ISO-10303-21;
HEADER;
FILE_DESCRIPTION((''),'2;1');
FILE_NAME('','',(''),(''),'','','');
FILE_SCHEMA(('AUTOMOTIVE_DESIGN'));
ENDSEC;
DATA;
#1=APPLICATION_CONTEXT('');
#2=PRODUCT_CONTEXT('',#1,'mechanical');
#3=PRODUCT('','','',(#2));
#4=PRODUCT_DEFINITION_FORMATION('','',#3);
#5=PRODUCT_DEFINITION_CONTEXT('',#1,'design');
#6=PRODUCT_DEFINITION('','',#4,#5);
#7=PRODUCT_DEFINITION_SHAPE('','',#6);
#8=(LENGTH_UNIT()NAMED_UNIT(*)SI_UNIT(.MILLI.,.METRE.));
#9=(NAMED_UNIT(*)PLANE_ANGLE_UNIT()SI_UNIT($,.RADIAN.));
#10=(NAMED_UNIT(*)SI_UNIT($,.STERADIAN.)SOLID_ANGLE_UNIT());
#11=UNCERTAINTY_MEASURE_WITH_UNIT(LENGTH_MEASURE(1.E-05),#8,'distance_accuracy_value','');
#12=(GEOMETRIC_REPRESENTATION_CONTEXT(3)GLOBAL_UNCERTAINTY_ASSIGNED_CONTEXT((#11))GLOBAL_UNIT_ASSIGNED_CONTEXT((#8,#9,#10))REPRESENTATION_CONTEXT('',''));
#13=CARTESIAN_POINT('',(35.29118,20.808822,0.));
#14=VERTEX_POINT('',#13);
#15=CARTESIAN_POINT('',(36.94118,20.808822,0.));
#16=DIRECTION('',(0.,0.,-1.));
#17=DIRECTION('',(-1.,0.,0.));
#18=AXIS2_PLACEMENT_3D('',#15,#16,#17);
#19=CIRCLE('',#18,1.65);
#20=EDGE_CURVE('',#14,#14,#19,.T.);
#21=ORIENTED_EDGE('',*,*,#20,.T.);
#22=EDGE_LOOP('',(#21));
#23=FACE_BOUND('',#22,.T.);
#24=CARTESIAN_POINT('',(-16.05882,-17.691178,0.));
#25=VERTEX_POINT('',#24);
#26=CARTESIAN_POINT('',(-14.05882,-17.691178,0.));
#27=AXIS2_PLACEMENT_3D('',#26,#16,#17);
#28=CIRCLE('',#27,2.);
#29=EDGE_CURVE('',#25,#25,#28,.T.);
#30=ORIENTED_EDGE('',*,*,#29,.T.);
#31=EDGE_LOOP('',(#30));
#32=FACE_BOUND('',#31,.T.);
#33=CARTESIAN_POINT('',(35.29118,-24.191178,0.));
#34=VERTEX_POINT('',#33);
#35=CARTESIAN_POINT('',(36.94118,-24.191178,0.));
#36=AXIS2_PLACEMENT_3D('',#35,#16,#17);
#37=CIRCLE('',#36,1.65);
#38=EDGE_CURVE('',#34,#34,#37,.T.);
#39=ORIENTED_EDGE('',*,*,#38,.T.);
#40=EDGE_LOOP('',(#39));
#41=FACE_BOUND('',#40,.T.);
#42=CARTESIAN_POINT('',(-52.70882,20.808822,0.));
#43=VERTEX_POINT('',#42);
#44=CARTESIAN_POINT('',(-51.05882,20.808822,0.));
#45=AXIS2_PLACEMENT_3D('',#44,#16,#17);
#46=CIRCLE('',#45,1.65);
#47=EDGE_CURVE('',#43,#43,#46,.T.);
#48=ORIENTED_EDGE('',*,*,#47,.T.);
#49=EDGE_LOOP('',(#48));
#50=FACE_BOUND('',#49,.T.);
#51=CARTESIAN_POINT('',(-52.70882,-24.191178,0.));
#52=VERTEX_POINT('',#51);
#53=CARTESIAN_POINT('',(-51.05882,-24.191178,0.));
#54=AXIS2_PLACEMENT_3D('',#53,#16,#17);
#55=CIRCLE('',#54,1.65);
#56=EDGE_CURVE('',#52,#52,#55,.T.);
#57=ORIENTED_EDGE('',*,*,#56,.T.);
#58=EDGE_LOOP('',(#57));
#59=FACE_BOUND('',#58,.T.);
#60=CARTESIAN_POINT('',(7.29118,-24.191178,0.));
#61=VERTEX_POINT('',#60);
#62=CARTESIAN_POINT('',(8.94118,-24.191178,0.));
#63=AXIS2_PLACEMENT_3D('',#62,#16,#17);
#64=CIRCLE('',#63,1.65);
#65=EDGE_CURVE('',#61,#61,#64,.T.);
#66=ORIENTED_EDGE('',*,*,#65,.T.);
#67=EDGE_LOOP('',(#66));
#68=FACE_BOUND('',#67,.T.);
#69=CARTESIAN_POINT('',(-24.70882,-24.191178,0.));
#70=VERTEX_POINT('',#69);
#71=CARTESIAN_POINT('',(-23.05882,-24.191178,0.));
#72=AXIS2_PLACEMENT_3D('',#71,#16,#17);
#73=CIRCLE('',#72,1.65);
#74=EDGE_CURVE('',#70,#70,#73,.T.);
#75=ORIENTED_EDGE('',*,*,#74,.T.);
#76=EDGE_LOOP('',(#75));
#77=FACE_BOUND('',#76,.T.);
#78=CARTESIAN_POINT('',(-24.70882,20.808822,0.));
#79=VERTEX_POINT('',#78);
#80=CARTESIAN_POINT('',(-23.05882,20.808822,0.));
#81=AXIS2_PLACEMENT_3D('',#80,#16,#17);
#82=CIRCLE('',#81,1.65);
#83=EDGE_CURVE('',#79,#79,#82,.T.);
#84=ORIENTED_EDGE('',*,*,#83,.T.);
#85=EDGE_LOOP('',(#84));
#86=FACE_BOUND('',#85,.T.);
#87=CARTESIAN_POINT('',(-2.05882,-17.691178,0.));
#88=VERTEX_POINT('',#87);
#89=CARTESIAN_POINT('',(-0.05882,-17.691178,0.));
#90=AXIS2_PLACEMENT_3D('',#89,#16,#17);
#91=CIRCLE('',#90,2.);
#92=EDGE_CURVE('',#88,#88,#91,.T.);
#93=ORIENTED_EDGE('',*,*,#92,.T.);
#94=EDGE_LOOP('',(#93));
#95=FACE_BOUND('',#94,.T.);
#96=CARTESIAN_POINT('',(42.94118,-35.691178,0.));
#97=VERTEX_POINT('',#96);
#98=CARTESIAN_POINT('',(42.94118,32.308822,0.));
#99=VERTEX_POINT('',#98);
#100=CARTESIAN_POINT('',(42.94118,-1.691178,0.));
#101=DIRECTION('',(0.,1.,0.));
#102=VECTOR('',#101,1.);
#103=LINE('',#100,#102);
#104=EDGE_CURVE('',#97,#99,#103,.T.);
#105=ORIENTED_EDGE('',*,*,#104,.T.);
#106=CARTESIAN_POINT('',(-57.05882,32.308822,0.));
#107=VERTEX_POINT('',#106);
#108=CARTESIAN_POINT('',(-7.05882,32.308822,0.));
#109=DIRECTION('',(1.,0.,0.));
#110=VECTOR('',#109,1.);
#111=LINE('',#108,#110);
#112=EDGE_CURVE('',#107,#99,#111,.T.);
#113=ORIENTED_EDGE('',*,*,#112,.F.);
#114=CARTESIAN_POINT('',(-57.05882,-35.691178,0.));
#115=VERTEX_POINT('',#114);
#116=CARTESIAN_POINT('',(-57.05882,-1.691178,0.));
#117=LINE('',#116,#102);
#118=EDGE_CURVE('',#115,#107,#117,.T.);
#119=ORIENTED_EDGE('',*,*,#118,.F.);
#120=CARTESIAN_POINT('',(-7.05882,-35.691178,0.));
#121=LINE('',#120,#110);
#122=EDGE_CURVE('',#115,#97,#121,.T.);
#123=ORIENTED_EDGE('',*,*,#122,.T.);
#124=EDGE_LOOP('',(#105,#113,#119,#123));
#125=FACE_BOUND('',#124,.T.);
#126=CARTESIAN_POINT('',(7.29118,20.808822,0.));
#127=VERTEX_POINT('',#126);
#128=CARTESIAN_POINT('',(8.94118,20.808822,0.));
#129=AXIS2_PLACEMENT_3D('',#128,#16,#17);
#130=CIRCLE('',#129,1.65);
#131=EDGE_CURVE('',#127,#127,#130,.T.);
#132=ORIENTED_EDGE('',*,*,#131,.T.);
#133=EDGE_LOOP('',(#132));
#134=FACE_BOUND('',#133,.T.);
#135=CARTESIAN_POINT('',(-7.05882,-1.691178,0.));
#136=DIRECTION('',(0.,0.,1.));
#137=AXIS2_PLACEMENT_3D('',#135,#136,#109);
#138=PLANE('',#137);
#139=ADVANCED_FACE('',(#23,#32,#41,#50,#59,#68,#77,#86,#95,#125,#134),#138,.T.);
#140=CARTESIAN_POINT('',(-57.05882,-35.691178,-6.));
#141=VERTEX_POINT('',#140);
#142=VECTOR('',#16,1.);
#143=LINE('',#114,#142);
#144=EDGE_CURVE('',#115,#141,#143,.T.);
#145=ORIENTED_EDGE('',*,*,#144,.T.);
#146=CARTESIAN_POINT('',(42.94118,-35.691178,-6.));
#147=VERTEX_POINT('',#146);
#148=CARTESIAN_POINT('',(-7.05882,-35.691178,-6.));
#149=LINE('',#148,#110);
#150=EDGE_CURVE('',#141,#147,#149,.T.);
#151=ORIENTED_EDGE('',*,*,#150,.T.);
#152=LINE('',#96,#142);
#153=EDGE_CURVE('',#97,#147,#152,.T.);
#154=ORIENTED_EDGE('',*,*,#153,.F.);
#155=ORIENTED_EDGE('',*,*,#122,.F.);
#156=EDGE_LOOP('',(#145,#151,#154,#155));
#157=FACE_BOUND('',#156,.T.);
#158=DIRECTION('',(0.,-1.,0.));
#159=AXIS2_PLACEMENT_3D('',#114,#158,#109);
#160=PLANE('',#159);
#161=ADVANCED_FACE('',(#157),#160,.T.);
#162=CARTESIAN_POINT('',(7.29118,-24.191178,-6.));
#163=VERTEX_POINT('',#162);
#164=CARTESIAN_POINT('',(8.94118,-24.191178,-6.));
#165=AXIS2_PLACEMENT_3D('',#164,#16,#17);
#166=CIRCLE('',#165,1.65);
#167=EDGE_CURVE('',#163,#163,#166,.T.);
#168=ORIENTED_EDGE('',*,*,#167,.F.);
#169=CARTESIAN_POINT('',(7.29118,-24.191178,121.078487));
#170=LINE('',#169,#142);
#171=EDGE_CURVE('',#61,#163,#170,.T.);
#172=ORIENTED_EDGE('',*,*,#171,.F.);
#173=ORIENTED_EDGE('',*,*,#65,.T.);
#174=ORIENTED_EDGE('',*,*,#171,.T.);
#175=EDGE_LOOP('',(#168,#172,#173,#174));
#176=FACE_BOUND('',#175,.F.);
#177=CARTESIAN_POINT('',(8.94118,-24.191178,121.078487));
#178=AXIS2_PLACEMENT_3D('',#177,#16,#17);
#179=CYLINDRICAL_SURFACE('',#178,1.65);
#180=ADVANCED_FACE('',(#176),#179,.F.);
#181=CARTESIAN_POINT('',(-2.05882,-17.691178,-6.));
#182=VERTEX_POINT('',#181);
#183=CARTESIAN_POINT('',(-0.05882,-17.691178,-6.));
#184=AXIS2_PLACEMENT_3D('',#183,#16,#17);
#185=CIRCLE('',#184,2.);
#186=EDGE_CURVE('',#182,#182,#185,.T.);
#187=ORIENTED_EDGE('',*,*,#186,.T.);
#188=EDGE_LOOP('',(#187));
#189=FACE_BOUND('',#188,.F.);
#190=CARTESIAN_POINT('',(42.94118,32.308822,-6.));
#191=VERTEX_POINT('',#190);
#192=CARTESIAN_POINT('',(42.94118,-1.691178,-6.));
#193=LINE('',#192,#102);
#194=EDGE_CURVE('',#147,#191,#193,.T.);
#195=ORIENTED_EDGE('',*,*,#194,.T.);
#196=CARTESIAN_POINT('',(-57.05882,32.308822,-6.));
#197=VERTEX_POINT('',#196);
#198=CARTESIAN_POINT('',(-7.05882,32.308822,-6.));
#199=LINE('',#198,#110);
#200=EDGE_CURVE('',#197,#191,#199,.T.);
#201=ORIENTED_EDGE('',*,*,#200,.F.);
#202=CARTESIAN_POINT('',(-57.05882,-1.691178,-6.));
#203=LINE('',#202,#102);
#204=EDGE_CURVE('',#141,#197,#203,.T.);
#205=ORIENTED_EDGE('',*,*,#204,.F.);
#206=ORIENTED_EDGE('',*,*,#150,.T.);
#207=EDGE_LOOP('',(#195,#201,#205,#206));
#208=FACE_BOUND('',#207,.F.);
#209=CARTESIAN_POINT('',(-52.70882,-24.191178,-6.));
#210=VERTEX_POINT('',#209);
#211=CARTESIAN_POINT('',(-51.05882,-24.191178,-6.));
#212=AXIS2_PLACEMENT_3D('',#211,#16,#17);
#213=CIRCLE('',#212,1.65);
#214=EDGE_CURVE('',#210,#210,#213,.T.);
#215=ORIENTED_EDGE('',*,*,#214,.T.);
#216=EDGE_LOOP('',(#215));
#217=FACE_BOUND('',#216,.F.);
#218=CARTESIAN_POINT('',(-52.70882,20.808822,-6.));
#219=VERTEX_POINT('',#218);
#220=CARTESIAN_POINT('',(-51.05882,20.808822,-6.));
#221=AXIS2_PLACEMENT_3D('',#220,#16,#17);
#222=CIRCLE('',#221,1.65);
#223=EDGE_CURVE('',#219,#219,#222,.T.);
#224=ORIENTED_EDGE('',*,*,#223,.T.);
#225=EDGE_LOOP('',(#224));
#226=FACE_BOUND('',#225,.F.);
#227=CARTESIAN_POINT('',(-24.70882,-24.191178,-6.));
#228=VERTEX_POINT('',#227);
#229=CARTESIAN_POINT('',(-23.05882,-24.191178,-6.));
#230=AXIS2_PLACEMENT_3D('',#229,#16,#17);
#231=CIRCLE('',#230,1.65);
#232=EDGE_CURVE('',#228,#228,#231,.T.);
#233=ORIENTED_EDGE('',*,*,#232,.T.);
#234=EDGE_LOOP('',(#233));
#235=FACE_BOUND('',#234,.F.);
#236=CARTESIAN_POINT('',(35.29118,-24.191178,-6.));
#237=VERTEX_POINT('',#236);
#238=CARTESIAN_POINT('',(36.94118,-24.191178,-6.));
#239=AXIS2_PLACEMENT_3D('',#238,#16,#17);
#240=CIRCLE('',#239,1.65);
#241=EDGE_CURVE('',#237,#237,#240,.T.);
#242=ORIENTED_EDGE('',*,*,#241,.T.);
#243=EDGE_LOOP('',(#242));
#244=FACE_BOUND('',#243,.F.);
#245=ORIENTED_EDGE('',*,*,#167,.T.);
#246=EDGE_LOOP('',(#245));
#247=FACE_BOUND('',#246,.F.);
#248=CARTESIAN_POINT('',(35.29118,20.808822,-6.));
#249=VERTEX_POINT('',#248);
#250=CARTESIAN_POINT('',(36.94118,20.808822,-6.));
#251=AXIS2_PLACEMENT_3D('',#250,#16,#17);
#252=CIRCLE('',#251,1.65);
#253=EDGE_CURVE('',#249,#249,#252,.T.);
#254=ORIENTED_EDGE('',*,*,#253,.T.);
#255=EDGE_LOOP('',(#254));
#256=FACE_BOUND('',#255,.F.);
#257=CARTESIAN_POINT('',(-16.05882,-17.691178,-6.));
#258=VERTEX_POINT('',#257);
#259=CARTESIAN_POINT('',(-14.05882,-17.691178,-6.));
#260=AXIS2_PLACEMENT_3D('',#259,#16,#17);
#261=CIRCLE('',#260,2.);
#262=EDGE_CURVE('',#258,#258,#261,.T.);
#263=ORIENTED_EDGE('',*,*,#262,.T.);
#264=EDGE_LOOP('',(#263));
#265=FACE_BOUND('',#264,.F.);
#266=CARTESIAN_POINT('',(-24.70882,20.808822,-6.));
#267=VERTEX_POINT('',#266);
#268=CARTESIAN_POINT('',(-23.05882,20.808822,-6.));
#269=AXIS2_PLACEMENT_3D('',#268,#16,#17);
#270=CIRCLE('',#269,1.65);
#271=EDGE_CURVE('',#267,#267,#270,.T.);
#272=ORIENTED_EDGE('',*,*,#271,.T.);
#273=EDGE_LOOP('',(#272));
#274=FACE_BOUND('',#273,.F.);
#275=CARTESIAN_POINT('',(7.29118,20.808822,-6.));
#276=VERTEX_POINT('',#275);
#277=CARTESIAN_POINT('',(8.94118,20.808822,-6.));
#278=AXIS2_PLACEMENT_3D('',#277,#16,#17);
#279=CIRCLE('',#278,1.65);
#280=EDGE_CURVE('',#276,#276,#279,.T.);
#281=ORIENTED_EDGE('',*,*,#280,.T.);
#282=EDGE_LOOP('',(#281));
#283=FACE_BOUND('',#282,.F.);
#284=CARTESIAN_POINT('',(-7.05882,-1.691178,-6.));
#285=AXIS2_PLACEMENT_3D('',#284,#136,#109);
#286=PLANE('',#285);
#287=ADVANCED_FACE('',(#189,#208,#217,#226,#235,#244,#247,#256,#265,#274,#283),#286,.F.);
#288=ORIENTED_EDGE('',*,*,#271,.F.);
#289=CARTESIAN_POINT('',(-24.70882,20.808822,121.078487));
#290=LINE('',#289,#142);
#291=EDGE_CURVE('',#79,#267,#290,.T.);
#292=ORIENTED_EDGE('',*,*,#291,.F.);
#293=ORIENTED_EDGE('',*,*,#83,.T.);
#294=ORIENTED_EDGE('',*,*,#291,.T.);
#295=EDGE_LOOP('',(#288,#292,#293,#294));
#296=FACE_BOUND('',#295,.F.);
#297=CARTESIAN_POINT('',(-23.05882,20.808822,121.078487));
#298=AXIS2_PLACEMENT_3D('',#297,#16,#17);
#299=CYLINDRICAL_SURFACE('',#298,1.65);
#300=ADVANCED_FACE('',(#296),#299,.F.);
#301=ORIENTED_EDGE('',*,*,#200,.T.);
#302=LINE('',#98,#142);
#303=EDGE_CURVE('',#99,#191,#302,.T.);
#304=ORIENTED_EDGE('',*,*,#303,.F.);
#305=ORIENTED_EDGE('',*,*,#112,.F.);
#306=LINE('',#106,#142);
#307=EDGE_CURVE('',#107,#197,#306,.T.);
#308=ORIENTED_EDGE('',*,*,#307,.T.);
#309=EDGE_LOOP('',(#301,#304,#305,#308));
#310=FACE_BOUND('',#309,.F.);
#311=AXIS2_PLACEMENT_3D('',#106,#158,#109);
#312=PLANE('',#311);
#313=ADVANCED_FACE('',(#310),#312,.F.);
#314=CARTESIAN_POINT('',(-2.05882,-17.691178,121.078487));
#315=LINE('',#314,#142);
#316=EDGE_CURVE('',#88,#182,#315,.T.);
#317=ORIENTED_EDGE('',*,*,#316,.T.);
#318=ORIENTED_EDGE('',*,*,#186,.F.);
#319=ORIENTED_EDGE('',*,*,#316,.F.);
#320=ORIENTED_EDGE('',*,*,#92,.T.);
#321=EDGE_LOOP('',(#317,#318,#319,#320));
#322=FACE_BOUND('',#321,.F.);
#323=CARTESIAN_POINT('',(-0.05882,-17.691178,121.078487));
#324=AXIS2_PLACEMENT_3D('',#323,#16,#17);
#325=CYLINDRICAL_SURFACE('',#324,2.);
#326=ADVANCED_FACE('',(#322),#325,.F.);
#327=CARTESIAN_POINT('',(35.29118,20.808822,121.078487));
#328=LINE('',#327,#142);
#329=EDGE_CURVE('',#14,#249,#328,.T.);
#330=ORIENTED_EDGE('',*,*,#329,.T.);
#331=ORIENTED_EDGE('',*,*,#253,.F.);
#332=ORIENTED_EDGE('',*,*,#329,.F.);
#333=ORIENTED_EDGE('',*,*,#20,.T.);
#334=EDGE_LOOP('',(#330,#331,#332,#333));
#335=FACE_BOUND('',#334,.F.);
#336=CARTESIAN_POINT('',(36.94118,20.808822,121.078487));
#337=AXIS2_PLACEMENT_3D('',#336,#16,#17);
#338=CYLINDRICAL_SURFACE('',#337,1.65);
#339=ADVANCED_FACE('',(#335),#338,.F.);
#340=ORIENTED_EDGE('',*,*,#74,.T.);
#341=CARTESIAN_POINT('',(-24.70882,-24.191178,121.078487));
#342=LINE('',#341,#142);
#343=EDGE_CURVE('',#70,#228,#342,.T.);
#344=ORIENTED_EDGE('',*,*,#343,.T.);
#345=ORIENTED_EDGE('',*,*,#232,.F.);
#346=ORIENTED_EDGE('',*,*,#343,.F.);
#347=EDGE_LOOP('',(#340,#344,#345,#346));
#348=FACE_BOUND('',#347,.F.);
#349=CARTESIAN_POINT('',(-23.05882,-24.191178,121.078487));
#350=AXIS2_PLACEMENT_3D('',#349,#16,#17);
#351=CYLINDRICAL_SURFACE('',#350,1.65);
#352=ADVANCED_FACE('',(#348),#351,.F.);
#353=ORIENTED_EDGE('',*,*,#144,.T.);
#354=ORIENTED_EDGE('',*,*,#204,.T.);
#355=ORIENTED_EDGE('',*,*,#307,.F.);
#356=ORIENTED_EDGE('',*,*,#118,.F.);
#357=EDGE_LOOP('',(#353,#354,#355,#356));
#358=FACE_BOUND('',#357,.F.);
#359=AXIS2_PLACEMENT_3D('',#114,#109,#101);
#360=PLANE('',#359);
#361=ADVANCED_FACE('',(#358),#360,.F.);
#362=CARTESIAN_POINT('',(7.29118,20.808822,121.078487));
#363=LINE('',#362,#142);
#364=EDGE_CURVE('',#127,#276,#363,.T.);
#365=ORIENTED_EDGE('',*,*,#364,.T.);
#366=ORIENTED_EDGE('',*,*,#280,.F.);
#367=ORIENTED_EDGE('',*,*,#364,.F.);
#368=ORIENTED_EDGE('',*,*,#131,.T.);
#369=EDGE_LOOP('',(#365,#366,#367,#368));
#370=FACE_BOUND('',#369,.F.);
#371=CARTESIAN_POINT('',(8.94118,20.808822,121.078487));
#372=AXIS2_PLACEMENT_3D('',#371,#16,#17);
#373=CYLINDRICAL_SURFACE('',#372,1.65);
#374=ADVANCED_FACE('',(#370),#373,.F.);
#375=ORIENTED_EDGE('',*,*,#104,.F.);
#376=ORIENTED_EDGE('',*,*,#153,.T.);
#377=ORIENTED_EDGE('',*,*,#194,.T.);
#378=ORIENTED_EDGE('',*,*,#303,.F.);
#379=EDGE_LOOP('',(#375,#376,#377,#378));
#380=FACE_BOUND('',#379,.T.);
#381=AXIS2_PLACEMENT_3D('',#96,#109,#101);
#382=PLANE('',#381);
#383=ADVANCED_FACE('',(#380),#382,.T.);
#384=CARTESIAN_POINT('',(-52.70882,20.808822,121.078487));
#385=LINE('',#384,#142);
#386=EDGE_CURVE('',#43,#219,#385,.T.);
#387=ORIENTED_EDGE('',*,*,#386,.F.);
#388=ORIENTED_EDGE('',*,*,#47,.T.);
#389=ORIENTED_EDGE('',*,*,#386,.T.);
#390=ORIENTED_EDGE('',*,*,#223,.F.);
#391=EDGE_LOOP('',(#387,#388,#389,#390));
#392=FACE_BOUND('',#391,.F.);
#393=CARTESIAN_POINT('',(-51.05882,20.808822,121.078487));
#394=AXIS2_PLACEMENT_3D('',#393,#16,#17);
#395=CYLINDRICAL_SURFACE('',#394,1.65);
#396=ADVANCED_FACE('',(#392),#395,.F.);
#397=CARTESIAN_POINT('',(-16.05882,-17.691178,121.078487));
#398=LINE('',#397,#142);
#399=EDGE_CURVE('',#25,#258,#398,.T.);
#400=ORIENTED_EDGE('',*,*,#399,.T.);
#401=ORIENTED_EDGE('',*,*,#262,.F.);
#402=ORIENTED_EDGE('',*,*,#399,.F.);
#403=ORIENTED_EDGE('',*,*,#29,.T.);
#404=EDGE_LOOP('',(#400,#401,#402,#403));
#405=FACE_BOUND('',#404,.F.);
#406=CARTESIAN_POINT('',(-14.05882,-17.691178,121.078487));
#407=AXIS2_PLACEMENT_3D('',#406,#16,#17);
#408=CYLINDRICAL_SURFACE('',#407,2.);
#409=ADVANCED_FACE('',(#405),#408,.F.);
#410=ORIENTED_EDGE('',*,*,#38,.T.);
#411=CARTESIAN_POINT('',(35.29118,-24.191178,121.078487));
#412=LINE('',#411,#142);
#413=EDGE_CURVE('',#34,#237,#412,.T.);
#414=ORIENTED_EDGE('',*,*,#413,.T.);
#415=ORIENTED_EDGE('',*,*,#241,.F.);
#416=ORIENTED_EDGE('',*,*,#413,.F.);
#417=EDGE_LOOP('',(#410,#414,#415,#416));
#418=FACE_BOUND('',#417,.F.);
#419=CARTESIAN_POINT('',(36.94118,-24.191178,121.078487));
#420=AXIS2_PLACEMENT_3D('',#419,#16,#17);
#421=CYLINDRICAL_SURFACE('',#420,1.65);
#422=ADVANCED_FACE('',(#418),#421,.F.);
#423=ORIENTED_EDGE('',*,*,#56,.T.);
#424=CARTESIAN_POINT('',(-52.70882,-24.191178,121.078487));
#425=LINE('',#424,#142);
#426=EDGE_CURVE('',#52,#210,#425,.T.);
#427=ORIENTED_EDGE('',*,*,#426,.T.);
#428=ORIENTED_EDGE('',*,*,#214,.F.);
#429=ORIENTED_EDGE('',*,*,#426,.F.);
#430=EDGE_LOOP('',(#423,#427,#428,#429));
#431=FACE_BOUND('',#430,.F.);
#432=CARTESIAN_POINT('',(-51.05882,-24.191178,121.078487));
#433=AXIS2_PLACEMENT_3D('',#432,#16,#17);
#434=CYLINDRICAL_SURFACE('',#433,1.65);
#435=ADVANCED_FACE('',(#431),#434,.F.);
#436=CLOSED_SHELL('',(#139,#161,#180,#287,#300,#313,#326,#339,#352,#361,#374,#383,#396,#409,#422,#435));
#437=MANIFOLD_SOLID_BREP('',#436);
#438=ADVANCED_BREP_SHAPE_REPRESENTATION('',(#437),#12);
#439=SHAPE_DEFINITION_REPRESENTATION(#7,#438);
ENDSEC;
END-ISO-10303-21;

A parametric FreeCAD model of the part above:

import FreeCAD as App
import Part
import Sketcher
Q = App.Units.Quantity


def add_polygon(sketch, points):
    """Adds a closed chain of lines whose ends are joined by coincident constraints."""
    first, n = sketch.GeometryCount, len(points)
    for a, b in zip(points, points[1:] + points[:1]):
        sketch.addGeometry(Part.LineSegment(App.Vector(*a, 0), App.Vector(*b, 0)), False)
    for i in range(n):
        sketch.addConstraint(Sketcher.Constraint("Coincident", first + i, 2, first + (i + 1) % n, 1))

doc = App.newDocument("Part")
body = doc.addObject("PartDesign::Body", "Body")

# Sketch on XY plane
sketch1 = body.newObject("Sketcher::SketchObject", "Sketch")
sketch1.AttachmentSupport = (doc.getObject("XY_Plane"), [""])
sketch1.MapMode = "FlatFace"
add_polygon(sketch1, [(-57, 32), (-57, -36), (43, -36), (43, 32)])  # lines 0-3
sketch1.addConstraint([
    Sketcher.Constraint("Vertical", 0),
    Sketcher.Constraint("Horizontal", 1),
    Sketcher.Constraint("Vertical", 2),
    Sketcher.Constraint("Horizontal", 3),
    Sketcher.Constraint("DistanceX", 1, 1, 1, 2, Q("100 mm")),
    Sketcher.Constraint("DistanceY", 0, 2, 0, 1, Q("68 mm")),
    Sketcher.Constraint("DistanceX", 0, 2, -1, 1, Q("57.05882 mm")),
    Sketcher.Constraint("DistanceY", 0, 2, -1, 1, Q("35.691178 mm")),
])
pad1 = body.newObject("PartDesign::Pad", "Pad")
pad1.Profile = sketch1
pad1.Length = 6
pad1.Reversed = True

# Sketch on XY plane
sketch2 = body.newObject("Sketcher::SketchObject", "Sketch001")
sketch2.AttachmentSupport = (doc.getObject("XY_Plane"), [""])
sketch2.MapMode = "FlatFace"
sketch2.addGeometry([
    Part.Circle(App.Vector(-51.1, 20.8, 0), App.Vector(0, 0, 1), 1.6),  # 0
    Part.Circle(App.Vector(-23.1, 20.8, 0), App.Vector(0, 0, 1), 1.6),  # 1
    Part.Circle(App.Vector(-51.1, -24.2, 0), App.Vector(0, 0, 1), 1.6),  # 2
    Part.Circle(App.Vector(-23.1, -24.2, 0), App.Vector(0, 0, 1), 1.6),  # 3
    Part.Circle(App.Vector(8.9, 20.8, 0), App.Vector(0, 0, 1), 1.6),  # 4
    Part.Circle(App.Vector(36.9, 20.8, 0), App.Vector(0, 0, 1), 1.6),  # 5
    Part.Circle(App.Vector(8.9, -24.2, 0), App.Vector(0, 0, 1), 1.6),  # 6
    Part.Circle(App.Vector(36.9, -24.2, 0), App.Vector(0, 0, 1), 1.6),  # 7
], False)
sketch2.addConstraint([
    Sketcher.Constraint("Equal", 0, 1),
    Sketcher.Constraint("Equal", 1, 2),
    Sketcher.Constraint("Equal", 2, 3),
    Sketcher.Constraint("Equal", 3, 4),
    Sketcher.Constraint("Equal", 4, 5),
    Sketcher.Constraint("Equal", 5, 6),
    Sketcher.Constraint("Equal", 6, 7),
    Sketcher.Constraint("Horizontal", 0, 3, 1, 3),
    Sketcher.Constraint("Horizontal", 2, 3, 3, 3),
    Sketcher.Constraint("Horizontal", 1, 3, 4, 3),
    Sketcher.Constraint("Horizontal", 4, 3, 5, 3),
    Sketcher.Constraint("Horizontal", 3, 3, 6, 3),
    Sketcher.Constraint("Horizontal", 6, 3, 7, 3),
    Sketcher.Constraint("Vertical", 0, 3, 2, 3),
    Sketcher.Constraint("Vertical", 1, 3, 3, 3),
    Sketcher.Constraint("Vertical", 4, 3, 6, 3),
    Sketcher.Constraint("Vertical", 5, 3, 7, 3),
    Sketcher.Constraint("Diameter", 0, Q("3.3 mm")),
    Sketcher.Constraint("DistanceX", 0, 3, 1, 3, Q("28 mm")),
    Sketcher.Constraint("DistanceY", 2, 3, 0, 3, Q("45 mm")),
    Sketcher.Constraint("DistanceX", 1, 3, 4, 3, Q("32 mm")),
    Sketcher.Constraint("DistanceX", 4, 3, 5, 3, Q("28 mm")),
    Sketcher.Constraint("DistanceX", 0, 3, -1, 1, Q("51.05882 mm")),
    Sketcher.Constraint("DistanceY", -1, 1, 0, 3, Q("20.808822 mm")),
])
doc.recompute()
hole = body.newObject("PartDesign::Hole", "Hole")
hole.Profile = sketch2
hole.ThreadType = "None"
hole.Diameter = 3.3
hole.DepthType = "ThroughAll"

# Sketch on XY plane
sketch3 = body.newObject("Sketcher::SketchObject", "Sketch002")
sketch3.AttachmentSupport = (doc.getObject("XY_Plane"), [""])
sketch3.MapMode = "FlatFace"
sketch3.addGeometry([
    Part.Circle(App.Vector(-14.1, -17.7, 0), App.Vector(0, 0, 1), 2),
    Part.Circle(App.Vector(-0.1, -17.7, 0), App.Vector(0, 0, 1), 2),
], False)
sketch3.addConstraint([
    Sketcher.Constraint("Equal", 0, 1),
    Sketcher.Constraint("Horizontal", 0, 3, 1, 3),
    Sketcher.Constraint("Diameter", 0, Q("4 mm")),
    Sketcher.Constraint("DistanceX", 0, 3, 1, 3, Q("14 mm")),
    Sketcher.Constraint("DistanceX", 0, 3, -1, 1, Q("14.05882 mm")),
    Sketcher.Constraint("DistanceY", 0, 3, -1, 1, Q("17.691178 mm")),
])
doc.recompute()
hole2 = body.newObject("PartDesign::Hole", "Hole001")
hole2.Profile = sketch3
hole2.ThreadType = "None"
hole2.Diameter = 4
hole2.DepthType = "ThroughAll"

doc.recompute()
